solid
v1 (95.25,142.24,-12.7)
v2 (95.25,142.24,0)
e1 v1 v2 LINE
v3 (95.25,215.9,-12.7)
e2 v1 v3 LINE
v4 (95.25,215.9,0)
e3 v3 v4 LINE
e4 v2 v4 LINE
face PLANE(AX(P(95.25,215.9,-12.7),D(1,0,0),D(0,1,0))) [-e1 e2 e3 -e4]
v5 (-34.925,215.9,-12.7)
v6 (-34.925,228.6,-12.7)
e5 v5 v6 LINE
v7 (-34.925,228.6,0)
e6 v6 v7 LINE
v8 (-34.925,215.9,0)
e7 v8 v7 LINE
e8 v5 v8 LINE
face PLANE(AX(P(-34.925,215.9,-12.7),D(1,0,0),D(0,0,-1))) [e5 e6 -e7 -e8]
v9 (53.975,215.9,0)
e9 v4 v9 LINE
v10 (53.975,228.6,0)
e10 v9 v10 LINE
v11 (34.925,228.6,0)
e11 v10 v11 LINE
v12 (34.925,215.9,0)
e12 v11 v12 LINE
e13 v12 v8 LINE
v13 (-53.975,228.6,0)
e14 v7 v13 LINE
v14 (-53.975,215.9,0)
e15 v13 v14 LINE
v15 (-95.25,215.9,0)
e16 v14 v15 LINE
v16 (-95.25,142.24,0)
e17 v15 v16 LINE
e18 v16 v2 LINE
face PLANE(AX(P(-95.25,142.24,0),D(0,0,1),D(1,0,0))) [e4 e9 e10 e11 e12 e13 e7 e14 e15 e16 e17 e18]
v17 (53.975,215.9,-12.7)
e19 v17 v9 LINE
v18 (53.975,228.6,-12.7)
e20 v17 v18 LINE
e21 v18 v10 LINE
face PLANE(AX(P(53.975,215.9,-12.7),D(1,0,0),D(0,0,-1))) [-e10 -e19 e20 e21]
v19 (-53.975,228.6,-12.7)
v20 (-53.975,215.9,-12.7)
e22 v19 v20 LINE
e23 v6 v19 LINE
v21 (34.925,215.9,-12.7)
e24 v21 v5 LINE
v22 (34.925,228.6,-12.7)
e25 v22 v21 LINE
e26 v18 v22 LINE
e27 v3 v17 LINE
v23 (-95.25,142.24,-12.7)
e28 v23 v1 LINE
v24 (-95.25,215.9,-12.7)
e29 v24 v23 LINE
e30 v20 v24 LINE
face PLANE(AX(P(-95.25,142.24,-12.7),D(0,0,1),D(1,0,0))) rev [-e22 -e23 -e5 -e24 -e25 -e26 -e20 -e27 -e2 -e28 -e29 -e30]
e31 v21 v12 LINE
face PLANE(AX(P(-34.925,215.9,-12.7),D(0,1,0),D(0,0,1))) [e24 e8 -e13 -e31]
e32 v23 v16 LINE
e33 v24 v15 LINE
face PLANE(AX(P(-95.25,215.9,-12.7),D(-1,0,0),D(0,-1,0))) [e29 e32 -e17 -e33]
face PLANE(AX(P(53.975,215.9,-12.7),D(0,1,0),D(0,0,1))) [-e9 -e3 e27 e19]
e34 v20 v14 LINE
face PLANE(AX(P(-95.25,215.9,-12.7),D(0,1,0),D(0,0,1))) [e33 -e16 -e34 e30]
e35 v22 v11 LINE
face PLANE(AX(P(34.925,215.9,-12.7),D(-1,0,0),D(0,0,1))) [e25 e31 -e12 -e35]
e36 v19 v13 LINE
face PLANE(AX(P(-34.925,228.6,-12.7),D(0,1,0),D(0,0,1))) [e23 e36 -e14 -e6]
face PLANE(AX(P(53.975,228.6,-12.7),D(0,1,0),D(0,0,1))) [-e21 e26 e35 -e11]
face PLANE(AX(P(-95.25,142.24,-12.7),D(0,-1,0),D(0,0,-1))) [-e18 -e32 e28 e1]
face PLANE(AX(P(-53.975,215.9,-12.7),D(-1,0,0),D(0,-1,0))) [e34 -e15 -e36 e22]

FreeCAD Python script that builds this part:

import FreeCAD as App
import Part
import Sketcher
Q = App.Units.Quantity

doc = App.newDocument("Part")
body = doc.addObject("PartDesign::Body", "Body")

# Sketch on XY plane
sketch1 = body.newObject("Sketcher::SketchObject", "Sketch")
sketch1.AttachmentSupport = (doc.getObject("XY_Plane"), [""])
sketch1.MapMode = "FlatFace"
sketch1.addGeometry([
    Part.LineSegment(App.Vector(-54, 216, 0), App.Vector(-95, 216, 0)),  # 0
    Part.LineSegment(App.Vector(-95, 216, 0), App.Vector(-95, 142, 0)),  # 1
    Part.LineSegment(App.Vector(-95, 142, 0), App.Vector(95, 142, 0)),  # 2
    Part.LineSegment(App.Vector(95, 142, 0), App.Vector(95, 216, 0)),  # 3
    Part.LineSegment(App.Vector(95, 216, 0), App.Vector(54, 216, 0)),  # 4
    Part.LineSegment(App.Vector(54, 216, 0), App.Vector(54, 229, 0)),  # 5
    Part.LineSegment(App.Vector(54, 229, 0), App.Vector(35, 229, 0)),  # 6
    Part.LineSegment(App.Vector(35, 229, 0), App.Vector(35, 216, 0)),  # 7
    Part.LineSegment(App.Vector(35, 216, 0), App.Vector(-35, 216, 0)),  # 8
    Part.LineSegment(App.Vector(-35, 216, 0), App.Vector(-35, 229, 0)),  # 9
    Part.LineSegment(App.Vector(-35, 229, 0), App.Vector(-54, 229, 0)),  # 10
    Part.LineSegment(App.Vector(-54, 229, 0), App.Vector(-54, 216, 0)),  # 11
], False)
sketch1.addConstraint([
    Sketcher.Constraint("Coincident", 0, 2, 1, 1),
    Sketcher.Constraint("Coincident", 1, 2, 2, 1),
    Sketcher.Constraint("Coincident", 2, 2, 3, 1),
    Sketcher.Constraint("Coincident", 3, 2, 4, 1),
    Sketcher.Constraint("Coincident", 4, 2, 5, 1),
    Sketcher.Constraint("Coincident", 5, 2, 6, 1),
    Sketcher.Constraint("Coincident", 6, 2, 7, 1),
    Sketcher.Constraint("Coincident", 7, 2, 8, 1),
    Sketcher.Constraint("Coincident", 8, 2, 9, 1),
    Sketcher.Constraint("Coincident", 9, 2, 10, 1),
    Sketcher.Constraint("Coincident", 10, 2, 11, 1),
    Sketcher.Constraint("Coincident", 11, 2, 0, 1),
    Sketcher.Constraint("Horizontal", 0),
    Sketcher.Constraint("Vertical", 1),
    Sketcher.Constraint("Horizontal", 2),
    Sketcher.Constraint("Vertical", 3),
    Sketcher.Constraint("Horizontal", 4),
    Sketcher.Constraint("Vertical", 5),
    Sketcher.Constraint("Horizontal", 6),
    Sketcher.Constraint("Vertical", 7),
    Sketcher.Constraint("Horizontal", 8),
    Sketcher.Constraint("Vertical", 9),
    Sketcher.Constraint("Horizontal", 10),
    Sketcher.Constraint("Vertical", 11),
    Sketcher.Constraint("Symmetric", 0, 2, 3, 2, -2),
    Sketcher.Constraint("Symmetric", 6, 2, 9, 2, -2),
    Sketcher.Constraint("Horizontal", 4, 2, 7, 2),
    Sketcher.Constraint("Equal", 0, 4),
    Sketcher.Constraint("DistanceX", 2, 1, 2, 2, Q("7.5 in")),
    Sketcher.Constraint("DistanceY", 1, 2, 1, 1, Q("2.9 in")),
    Sketcher.Constraint("DistanceY", 5, 1, 5, 2, Q("0.5 in")),
    Sketcher.Constraint("DistanceY", -1, 1, 5, 2, Q("9 in")),
    Sketcher.Constraint("DistanceX", 6, 2, 6, 1, Q("0.75 in")),
    Sketcher.Constraint("DistanceX", 8, 2, 8, 1, Q("2.75 in")),
])
pad1 = body.newObject("PartDesign::Pad", "Pad")
pad1.Profile = sketch1
pad1.Length = Q("0.5 in")
pad1.Reversed = True

doc.recompute()
